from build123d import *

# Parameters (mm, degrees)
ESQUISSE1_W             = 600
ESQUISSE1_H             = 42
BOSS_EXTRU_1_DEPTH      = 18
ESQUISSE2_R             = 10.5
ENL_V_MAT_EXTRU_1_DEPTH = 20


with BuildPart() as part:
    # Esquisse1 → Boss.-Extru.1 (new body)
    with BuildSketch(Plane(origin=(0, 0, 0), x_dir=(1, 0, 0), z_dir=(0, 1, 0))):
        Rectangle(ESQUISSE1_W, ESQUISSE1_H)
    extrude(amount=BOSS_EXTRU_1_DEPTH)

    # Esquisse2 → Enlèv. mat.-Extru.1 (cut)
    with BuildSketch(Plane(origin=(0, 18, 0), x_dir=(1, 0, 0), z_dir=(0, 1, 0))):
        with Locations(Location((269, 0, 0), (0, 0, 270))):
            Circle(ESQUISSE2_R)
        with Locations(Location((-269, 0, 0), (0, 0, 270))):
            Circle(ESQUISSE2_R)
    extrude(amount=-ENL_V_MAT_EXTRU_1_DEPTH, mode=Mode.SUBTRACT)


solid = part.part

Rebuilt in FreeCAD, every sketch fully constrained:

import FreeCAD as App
import Part
import Sketcher

V = App.Vector
Q = App.Units.Quantity


def add_polygon(sketch, points):
    """Adds a closed chain of lines whose ends are joined by coincident constraints."""
    first, n = sketch.GeometryCount, len(points)
    for a, b in zip(points, points[1:] + points[:1]):
        sketch.addGeometry(Part.LineSegment(App.Vector(*a, 0), App.Vector(*b, 0)), False)
    for i in range(n):
        sketch.addConstraint(Sketcher.Constraint("Coincident", first + i, 2, first + (i + 1) % n, 1))

doc = App.newDocument("Part")
params = doc.addObject("Spreadsheet::Sheet", "Params")
for row, (alias, value) in enumerate([
    ("sketch1_width", "600 mm"),
    ("sketch1_height", "42 mm"),
    ("pad1_length", "18 mm"),
    ("sketch2_diameter", "21 mm"),
    ("pocket1_length", "20 mm"),
], start=1):
    params.set(f"A{row}", alias)
    params.set(f"B{row}", "=" + value)
    params.setAlias(f"B{row}", alias)

body = doc.addObject("PartDesign::Body", "Body")

# Sketch on XZ plane
sketch1 = body.newObject("Sketcher::SketchObject", "Sketch")
sketch1.AttachmentSupport = (doc.getObject("XZ_Plane"), [""])
sketch1.MapMode = "FlatFace"
add_polygon(sketch1, [(-300, -21), (-300, 21), (300, 21), (300, -21)])  # lines 0-3
sketch1.addConstraint(Sketcher.Constraint("Vertical", 0))
sketch1.addConstraint(Sketcher.Constraint("Horizontal", 1))
sketch1.addConstraint(Sketcher.Constraint("Vertical", 2))
sketch1.addConstraint(Sketcher.Constraint("Horizontal", 3))
sketch1.addConstraint(Sketcher.Constraint("Symmetric", 0, 2, 2, 2, -1, 1))
sketch1.addConstraint(Sketcher.Constraint("DistanceX", 1, 1, 1, 2, Q("600 mm")))
sketch1.addConstraint(Sketcher.Constraint("DistanceY", 0, 1, 0, 2, Q("42 mm")))
sketch1.setExpression("Constraints[9]", "Params.sketch1_width")
sketch1.setExpression("Constraints[10]", "Params.sketch1_height")
pad1 = body.newObject("PartDesign::Pad", "Pad")
pad1.Profile = sketch1
pad1.setExpression("Length", "Params.pad1_length")
pad1.Reversed = True

# Sketch on XZ plane
sketch2 = body.newObject("Sketcher::SketchObject", "Sketch001")
sketch2.AttachmentSupport = (doc.getObject("XZ_Plane"), [""])
sketch2.MapMode = "FlatFace"
sketch2.AttachmentOffset = App.Placement(V(0, 0, -18), App.Rotation())
sketch2.addGeometry(Part.Circle(V(269, 0, 0), V(0, 0, 1), 10), False)
sketch2.addGeometry(Part.Circle(V(-269, 0, 0), V(0, 0, 1), 10), False)
sketch2.addConstraint(Sketcher.Constraint("Equal", 0, 1))
sketch2.addConstraint(Sketcher.Constraint("Symmetric", 0, 3, 1, 3, -1, 1))
sketch2.addConstraint(Sketcher.Constraint("PointOnObject", 0, 3, -1))
sketch2.addConstraint(Sketcher.Constraint("Diameter", 0, Q("21 mm")))
sketch2.addConstraint(Sketcher.Constraint("DistanceX", -1, 1, 0, 3, Q("269 mm")))
sketch2.setExpression("Constraints[3]", "Params.sketch2_diameter")
pocket1 = body.newObject("PartDesign::Pocket", "Pocket")
pocket1.Profile = sketch2
pocket1.setExpression("Length", "Params.pocket1_length")
pocket1.Reversed = True

doc.recompute()
